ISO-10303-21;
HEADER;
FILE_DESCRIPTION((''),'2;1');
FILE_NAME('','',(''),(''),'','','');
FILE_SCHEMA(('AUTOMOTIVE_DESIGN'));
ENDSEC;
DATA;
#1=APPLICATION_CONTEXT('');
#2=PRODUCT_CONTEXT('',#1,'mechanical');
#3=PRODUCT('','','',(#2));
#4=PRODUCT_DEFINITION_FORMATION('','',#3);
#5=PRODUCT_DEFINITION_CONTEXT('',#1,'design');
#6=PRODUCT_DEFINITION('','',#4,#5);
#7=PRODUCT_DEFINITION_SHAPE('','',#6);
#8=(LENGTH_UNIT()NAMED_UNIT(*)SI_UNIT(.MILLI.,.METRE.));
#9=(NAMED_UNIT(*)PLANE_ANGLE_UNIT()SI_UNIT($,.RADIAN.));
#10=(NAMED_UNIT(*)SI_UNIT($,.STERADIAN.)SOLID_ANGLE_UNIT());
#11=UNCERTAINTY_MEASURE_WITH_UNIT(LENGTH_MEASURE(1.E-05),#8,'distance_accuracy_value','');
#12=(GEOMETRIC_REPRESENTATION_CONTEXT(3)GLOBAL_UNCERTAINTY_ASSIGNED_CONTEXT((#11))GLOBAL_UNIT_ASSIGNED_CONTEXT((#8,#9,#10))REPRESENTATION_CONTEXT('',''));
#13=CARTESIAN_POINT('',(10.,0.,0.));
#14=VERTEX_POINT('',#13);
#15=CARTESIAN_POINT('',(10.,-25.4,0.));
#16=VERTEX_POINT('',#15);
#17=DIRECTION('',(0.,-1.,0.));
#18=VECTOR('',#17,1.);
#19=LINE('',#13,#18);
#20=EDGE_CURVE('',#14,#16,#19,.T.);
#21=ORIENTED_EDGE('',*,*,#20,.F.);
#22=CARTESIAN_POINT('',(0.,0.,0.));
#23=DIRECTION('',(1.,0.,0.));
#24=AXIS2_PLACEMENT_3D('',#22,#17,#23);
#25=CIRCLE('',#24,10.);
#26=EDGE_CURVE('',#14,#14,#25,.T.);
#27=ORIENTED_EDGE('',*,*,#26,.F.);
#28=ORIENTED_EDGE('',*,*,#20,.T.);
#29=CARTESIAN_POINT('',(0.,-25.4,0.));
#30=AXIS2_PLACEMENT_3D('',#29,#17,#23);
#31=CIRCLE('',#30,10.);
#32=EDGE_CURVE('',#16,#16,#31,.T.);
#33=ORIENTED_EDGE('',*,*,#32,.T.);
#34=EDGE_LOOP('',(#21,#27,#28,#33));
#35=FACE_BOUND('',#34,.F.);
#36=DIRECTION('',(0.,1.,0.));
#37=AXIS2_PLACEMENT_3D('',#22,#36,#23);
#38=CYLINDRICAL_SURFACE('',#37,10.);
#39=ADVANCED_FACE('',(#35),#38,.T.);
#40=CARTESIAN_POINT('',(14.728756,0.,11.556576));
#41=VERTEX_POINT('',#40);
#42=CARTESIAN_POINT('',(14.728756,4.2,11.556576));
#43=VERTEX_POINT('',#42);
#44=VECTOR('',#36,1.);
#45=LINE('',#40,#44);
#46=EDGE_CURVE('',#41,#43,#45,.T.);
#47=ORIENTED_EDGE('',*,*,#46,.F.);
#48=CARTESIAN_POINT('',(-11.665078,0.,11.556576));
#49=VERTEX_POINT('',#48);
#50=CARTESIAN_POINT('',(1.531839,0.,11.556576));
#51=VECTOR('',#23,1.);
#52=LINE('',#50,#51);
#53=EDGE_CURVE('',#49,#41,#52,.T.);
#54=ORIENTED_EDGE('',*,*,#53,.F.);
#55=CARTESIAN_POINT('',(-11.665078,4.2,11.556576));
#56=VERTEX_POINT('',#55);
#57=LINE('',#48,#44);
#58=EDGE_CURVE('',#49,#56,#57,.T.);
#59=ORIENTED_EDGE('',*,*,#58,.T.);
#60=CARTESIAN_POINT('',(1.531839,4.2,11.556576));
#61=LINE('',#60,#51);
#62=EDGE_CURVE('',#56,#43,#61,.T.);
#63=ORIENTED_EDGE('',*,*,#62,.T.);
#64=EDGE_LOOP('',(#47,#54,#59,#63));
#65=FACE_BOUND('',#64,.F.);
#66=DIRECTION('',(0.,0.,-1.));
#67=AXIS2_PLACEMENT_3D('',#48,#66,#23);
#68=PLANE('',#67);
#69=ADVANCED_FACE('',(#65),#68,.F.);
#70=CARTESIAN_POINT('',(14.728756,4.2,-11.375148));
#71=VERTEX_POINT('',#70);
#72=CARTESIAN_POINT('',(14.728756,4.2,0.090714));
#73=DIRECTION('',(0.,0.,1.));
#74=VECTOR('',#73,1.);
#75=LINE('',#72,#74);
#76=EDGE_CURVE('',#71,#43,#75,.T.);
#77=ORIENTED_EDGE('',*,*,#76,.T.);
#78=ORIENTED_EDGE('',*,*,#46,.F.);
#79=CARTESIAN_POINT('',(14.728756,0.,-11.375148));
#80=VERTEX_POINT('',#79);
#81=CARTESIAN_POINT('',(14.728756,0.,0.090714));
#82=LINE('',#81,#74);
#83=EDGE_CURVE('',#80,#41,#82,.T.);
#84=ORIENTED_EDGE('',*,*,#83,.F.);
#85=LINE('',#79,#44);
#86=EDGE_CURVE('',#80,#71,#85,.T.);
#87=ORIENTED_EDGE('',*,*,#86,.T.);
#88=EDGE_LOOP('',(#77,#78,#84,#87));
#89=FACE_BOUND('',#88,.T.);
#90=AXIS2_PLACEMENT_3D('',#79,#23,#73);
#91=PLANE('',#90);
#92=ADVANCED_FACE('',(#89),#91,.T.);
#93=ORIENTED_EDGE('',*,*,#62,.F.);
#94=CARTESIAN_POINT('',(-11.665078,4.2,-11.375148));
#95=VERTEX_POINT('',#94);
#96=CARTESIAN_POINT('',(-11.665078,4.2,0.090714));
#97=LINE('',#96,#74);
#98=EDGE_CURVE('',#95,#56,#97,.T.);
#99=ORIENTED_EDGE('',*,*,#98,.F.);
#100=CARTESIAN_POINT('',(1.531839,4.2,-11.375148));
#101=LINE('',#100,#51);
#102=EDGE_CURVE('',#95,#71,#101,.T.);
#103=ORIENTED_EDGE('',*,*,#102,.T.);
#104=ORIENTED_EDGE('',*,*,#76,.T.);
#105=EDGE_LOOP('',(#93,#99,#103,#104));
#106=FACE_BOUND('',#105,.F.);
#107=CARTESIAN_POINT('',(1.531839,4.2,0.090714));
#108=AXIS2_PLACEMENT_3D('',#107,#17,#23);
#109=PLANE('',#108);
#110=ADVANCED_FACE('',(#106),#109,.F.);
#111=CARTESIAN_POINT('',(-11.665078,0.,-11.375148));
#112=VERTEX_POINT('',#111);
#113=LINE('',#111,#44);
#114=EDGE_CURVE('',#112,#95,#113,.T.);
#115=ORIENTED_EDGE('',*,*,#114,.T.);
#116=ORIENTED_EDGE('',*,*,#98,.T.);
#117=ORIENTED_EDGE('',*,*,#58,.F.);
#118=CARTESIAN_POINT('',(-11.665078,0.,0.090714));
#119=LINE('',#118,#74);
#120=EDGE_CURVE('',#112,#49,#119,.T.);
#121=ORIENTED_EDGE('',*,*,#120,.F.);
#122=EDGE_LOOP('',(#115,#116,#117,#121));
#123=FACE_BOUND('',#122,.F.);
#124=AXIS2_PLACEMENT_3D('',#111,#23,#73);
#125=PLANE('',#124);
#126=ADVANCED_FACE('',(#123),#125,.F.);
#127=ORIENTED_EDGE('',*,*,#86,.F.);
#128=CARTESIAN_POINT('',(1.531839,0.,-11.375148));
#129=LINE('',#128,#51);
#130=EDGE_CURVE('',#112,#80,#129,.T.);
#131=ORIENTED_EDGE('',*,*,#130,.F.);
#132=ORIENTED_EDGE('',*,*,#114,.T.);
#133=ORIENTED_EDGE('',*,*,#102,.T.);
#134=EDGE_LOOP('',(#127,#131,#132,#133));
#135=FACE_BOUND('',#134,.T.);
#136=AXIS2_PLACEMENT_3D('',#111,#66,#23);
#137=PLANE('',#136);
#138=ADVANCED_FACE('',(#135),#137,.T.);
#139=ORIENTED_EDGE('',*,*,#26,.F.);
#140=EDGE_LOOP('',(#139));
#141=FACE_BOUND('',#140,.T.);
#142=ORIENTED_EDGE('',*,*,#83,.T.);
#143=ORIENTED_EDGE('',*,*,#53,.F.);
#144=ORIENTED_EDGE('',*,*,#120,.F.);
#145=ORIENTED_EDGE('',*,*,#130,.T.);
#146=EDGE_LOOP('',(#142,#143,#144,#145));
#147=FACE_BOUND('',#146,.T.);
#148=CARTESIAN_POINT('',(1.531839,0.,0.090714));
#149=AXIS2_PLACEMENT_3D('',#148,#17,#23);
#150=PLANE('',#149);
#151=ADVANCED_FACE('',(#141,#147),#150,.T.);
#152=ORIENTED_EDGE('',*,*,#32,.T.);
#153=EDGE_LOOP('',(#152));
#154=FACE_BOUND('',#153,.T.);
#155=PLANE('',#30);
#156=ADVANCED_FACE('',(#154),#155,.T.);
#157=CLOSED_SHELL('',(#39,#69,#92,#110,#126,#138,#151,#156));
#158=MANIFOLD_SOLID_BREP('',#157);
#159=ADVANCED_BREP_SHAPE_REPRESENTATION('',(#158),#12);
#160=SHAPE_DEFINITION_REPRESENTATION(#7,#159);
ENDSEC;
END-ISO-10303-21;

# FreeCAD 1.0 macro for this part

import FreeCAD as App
import Part
import Sketcher


def add_polygon(sketch, points):
    """Adds a closed chain of lines whose ends are joined by coincident constraints."""
    first, n = sketch.GeometryCount, len(points)
    for a, b in zip(points, points[1:] + points[:1]):
        sketch.addGeometry(Part.LineSegment(App.Vector(*a, 0), App.Vector(*b, 0)), False)
    for i in range(n):
        sketch.addConstraint(Sketcher.Constraint("Coincident", first + i, 2, first + (i + 1) % n, 1))

doc = App.newDocument("Part")
body = doc.addObject("PartDesign::Body", "Body")

# Sketch on XZ plane
sketch1 = body.newObject("Sketcher::SketchObject", "Sketch")
sketch1.AttachmentSupport = (doc.getObject("XZ_Plane"), [""])
sketch1.MapMode = "FlatFace"
sketch1.addGeometry(Part.Circle(App.Vector(0, 0, 0), App.Vector(0, 0, 1), 10), False)
sketch1.addConstraint(Sketcher.Constraint("Coincident", 0, 3, -1, 1))
sketch1.addConstraint(Sketcher.Constraint("Diameter", 0, 20.0))
pad1 = body.newObject("PartDesign::Pad", "Pad")
pad1.Profile = sketch1
pad1.Length = 25.4

# Sketch on XZ plane
sketch2 = body.newObject("Sketcher::SketchObject", "Sketch001")
sketch2.AttachmentSupport = (doc.getObject("XZ_Plane"), [""])
sketch2.MapMode = "FlatFace"
add_polygon(sketch2, [(-12, 12), (-12, -11), (15, -11), (15, 12)])  # lines 0-3
sketch2.addConstraint(Sketcher.Constraint("Vertical", 0))
sketch2.addConstraint(Sketcher.Constraint("Horizontal", 1))
sketch2.addConstraint(Sketcher.Constraint("Vertical", 2))
sketch2.addConstraint(Sketcher.Constraint("Horizontal", 3))
sketch2.addConstraint(Sketcher.Constraint("DistanceX", 1, 1, 1, 2, 26.393833))
sketch2.addConstraint(Sketcher.Constraint("DistanceY", 0, 2, 0, 1, 22.931724))
sketch2.addConstraint(Sketcher.Constraint("DistanceX", 0, 2, -1, 1, 11.665078))
sketch2.addConstraint(Sketcher.Constraint("DistanceY", 0, 2, -1, 1, 11.375148))
pad2 = body.newObject("PartDesign::Pad", "Pad001")
pad2.Profile = sketch2
pad2.Length = 4.2
pad2.Reversed = True

doc.recompute()
